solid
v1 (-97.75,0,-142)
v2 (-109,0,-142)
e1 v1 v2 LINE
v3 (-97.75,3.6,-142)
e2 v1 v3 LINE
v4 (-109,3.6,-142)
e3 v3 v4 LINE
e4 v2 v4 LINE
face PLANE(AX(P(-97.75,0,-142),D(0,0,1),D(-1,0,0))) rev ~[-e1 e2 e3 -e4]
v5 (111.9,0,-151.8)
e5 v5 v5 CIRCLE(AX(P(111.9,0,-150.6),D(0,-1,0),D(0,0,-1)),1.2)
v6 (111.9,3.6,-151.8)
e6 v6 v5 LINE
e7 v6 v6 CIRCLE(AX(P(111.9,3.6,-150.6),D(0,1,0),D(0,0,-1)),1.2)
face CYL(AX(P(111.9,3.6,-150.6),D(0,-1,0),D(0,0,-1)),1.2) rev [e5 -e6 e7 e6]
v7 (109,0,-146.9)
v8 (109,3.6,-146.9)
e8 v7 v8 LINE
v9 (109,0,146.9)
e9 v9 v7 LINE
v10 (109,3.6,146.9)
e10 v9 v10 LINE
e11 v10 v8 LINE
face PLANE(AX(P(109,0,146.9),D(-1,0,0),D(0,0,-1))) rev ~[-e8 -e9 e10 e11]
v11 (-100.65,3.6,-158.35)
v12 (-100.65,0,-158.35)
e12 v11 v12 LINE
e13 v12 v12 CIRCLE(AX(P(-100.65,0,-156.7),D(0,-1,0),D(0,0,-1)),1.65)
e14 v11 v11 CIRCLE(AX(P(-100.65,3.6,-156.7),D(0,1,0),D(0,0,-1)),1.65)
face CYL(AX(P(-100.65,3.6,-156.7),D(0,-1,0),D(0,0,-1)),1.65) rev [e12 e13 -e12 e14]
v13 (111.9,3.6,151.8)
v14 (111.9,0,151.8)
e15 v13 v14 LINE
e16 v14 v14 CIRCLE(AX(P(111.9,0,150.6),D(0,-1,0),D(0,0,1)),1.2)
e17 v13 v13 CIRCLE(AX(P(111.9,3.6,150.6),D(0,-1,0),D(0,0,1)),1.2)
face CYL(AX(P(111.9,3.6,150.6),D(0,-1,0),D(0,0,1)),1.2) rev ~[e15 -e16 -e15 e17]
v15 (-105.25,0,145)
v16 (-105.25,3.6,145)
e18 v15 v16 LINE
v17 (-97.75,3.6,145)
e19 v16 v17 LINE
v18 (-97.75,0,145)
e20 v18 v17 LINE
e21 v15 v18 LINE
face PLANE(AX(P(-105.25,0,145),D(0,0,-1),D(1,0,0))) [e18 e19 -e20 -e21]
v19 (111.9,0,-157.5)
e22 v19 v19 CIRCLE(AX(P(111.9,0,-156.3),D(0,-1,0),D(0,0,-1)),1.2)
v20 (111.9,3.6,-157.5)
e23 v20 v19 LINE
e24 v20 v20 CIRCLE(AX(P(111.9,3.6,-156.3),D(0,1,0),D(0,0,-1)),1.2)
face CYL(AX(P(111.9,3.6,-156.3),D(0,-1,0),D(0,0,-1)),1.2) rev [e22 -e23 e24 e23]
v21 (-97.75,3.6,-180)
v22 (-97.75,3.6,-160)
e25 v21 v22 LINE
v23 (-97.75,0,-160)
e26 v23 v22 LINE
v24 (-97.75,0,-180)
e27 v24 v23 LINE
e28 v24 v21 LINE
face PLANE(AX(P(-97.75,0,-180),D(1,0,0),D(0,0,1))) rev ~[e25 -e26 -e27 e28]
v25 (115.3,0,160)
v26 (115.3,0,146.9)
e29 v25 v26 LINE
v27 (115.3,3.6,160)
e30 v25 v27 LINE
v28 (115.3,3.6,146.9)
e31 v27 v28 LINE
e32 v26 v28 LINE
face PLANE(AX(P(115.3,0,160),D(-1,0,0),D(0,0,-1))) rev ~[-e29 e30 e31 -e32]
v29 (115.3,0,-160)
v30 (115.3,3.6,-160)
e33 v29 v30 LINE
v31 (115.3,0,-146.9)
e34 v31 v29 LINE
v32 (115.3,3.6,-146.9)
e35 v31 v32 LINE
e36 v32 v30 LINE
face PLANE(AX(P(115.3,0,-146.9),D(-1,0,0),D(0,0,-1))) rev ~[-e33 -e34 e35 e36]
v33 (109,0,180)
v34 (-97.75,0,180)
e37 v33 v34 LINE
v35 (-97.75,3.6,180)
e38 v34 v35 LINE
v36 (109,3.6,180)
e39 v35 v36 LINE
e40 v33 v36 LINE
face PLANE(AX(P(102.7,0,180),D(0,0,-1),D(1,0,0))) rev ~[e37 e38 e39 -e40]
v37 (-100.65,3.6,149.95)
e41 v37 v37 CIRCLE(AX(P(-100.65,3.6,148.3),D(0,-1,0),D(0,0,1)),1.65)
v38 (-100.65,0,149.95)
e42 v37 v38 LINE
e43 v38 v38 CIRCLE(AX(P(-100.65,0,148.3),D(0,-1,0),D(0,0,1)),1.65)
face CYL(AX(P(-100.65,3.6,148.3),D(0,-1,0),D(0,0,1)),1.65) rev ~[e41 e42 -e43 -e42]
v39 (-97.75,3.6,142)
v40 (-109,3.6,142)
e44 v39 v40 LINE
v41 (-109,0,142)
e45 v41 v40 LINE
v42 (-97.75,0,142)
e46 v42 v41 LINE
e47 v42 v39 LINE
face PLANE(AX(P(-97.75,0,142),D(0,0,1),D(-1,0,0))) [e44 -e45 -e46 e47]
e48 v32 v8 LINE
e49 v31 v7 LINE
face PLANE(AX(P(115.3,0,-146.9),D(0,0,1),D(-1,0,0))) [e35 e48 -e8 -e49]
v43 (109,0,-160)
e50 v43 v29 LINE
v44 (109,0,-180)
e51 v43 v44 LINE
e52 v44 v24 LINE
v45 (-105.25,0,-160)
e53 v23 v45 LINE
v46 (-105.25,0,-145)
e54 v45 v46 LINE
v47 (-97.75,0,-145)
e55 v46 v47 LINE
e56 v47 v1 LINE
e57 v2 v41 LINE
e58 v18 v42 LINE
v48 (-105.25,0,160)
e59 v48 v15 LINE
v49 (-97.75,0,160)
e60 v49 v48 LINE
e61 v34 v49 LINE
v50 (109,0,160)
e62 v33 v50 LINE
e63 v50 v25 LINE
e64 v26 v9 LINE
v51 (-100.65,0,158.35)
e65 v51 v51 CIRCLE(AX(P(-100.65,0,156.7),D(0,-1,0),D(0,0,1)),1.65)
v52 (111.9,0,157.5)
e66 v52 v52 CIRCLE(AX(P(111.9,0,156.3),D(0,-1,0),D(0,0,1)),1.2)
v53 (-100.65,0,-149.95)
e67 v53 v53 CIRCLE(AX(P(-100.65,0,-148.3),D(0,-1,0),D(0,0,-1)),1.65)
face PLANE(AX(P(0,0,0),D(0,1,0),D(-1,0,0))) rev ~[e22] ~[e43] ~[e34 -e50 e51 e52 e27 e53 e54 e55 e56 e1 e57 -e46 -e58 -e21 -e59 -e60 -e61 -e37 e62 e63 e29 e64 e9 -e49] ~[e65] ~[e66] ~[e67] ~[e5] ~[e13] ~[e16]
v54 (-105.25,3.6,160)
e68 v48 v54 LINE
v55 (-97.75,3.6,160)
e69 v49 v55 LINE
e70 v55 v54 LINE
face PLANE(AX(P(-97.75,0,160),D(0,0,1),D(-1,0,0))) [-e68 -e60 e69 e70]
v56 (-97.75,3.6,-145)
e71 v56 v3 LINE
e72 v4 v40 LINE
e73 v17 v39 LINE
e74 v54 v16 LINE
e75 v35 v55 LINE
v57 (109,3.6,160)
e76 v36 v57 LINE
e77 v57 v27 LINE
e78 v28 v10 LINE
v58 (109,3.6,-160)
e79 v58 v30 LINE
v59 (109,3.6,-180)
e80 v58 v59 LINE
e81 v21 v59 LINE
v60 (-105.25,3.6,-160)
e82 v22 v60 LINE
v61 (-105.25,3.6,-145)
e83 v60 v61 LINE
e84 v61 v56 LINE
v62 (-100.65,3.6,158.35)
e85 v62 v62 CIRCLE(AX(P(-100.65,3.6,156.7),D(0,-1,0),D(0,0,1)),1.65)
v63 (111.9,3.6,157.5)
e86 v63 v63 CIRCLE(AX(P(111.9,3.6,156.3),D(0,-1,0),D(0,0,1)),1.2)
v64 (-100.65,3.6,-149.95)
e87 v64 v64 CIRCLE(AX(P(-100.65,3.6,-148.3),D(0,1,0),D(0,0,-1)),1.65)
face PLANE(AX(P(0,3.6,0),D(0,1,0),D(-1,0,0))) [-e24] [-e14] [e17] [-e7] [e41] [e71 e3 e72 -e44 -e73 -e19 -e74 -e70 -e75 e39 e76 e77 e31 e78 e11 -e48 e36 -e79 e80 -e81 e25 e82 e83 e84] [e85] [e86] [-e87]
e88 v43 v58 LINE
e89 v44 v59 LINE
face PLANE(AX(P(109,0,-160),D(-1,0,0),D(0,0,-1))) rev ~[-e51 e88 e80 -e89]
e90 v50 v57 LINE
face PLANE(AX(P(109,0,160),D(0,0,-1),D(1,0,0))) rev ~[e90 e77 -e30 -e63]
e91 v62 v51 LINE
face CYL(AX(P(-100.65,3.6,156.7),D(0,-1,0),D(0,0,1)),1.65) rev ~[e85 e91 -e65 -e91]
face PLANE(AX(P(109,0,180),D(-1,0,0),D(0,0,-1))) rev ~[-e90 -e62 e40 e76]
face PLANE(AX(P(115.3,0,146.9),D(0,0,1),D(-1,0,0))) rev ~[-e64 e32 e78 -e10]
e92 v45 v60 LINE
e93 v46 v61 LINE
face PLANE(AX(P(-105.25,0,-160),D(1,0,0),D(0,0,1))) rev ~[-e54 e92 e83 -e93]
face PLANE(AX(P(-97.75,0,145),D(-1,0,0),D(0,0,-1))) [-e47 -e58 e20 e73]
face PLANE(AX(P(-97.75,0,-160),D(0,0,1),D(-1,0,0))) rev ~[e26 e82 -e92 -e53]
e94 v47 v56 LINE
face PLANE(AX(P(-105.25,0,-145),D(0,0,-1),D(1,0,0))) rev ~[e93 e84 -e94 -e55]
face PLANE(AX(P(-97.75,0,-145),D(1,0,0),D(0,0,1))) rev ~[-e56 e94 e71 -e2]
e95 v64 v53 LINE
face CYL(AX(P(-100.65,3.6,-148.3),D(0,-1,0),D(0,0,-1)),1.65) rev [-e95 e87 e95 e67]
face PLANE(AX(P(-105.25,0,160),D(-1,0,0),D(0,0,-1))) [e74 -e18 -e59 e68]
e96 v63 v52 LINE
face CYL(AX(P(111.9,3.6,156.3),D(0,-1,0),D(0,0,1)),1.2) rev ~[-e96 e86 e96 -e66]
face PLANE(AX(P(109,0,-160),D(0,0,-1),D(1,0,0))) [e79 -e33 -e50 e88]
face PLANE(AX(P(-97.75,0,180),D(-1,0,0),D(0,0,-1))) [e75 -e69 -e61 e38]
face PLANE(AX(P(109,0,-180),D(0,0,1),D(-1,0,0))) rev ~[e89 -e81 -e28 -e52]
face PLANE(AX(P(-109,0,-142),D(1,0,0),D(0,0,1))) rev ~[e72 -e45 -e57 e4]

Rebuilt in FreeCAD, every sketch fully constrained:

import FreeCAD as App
import Part
import Sketcher

V = App.Vector


def add_polygon(sketch, points):
    """Adds a closed chain of lines whose ends are joined by coincident constraints."""
    first, n = sketch.GeometryCount, len(points)
    for a, b in zip(points, points[1:] + points[:1]):
        sketch.addGeometry(Part.LineSegment(App.Vector(*a, 0), App.Vector(*b, 0)), False)
    for i in range(n):
        sketch.addConstraint(Sketcher.Constraint("Coincident", first + i, 2, first + (i + 1) % n, 1))

doc = App.newDocument("Part")
body = doc.addObject("PartDesign::Body", "Body")

# Sketch on XZ plane
sketch1 = doc.addObject("Sketcher::SketchObject", "Sketch")
body.addObject(sketch1)
sketch1.AttachmentSupport = (doc.XZ_Plane, [""])
sketch1.MapMode = "FlatFace"
add_polygon(sketch1, [(109, -160), (109, -180), (-97.8, -180), (-97.8, -160), (-105.2, -160), (-105.2, -145), (-97.8, -145), (-97.8, -142), (-109, -142), (-109, 142), (-97.8, 142), (-97.8, 145), (-105.2, 145), (-105.2, 160), (-97.8, 160), (-97.8, 180), (109, 180), (109, 160), (115.3, 160), (115.3, 146.9), (109, 146.9), (109, -146.9), (115.3, -146.9), (115.3, -160)])  # lines 0-23
sketch1.addConstraint([
    Sketcher.Constraint("Vertical", 0),
    Sketcher.Constraint("Horizontal", 1),
    Sketcher.Constraint("Vertical", 2),
    Sketcher.Constraint("Horizontal", 3),
    Sketcher.Constraint("Vertical", 4),
    Sketcher.Constraint("Horizontal", 5),
    Sketcher.Constraint("Vertical", 6),
    Sketcher.Constraint("Horizontal", 7),
    Sketcher.Constraint("Vertical", 8),
    Sketcher.Constraint("Horizontal", 9),
    Sketcher.Constraint("Vertical", 10),
    Sketcher.Constraint("Horizontal", 11),
    Sketcher.Constraint("Vertical", 12),
    Sketcher.Constraint("Horizontal", 13),
    Sketcher.Constraint("Vertical", 14),
    Sketcher.Constraint("Horizontal", 15),
    Sketcher.Constraint("Vertical", 16),
    Sketcher.Constraint("Horizontal", 17),
    Sketcher.Constraint("Vertical", 18),
    Sketcher.Constraint("Horizontal", 19),
    Sketcher.Constraint("Vertical", 20),
    Sketcher.Constraint("Horizontal", 21),
    Sketcher.Constraint("Vertical", 22),
    Sketcher.Constraint("Horizontal", 23),
    Sketcher.Constraint("Symmetric", 6, 2, 9, 2, -1),
    Sketcher.Constraint("Symmetric", 4, 2, 11, 2, -1),
    Sketcher.Constraint("Symmetric", 2, 2, 13, 2, -1),
    Sketcher.Constraint("Symmetric", 0, 2, 15, 2, -1),
    Sketcher.Constraint("Symmetric", 18, 2, 21, 2, -1),
    Sketcher.Constraint("Horizontal", 13, 2, 16, 2),
    Sketcher.Constraint("Horizontal", 3, 2, 22, 2),
    Sketcher.Constraint("Vertical", 2, 2, 5, 2),
    Sketcher.Constraint("Vertical", 16, 2, 19, 2),
    Sketcher.Constraint("DistanceY", 0, 2, 0, 1, 20.0),
    Sketcher.Constraint("DistanceY", 4, 1, 4, 2, 15.0),
    Sketcher.Constraint("DistanceY", 6, 1, 6, 2, 3.0),
    Sketcher.Constraint("DistanceX", 3, 2, 3, 1, 7.5),
    Sketcher.Constraint("DistanceX", 17, 1, 17, 2, 6.3),
    Sketcher.Constraint("DistanceY", 18, 2, 18, 1, 13.1),
    Sketcher.Constraint("DistanceX", 7, 2, 7, 1, 11.25),
    Sketcher.Constraint("DistanceY", 8, 1, 8, 2, 284.0),
    Sketcher.Constraint("DistanceX", -1, 1, 0, 2, 109.0),
    Sketcher.Constraint("DistanceX", 7, 2, -1, 1, 109.0),
])
pad1 = doc.addObject("PartDesign::Pad", "Pad")
body.addObject(pad1)
pad1.Profile = sketch1
pad1.Length = 3.6
pad1.Reversed = True

# Sketch on XZ plane
sketch2 = doc.addObject("Sketcher::SketchObject", "Sketch001")
body.addObject(sketch2)
sketch2.AttachmentSupport = (doc.XZ_Plane, [""])
sketch2.MapMode = "FlatFace"
sketch2.AttachmentOffset = App.Placement(V(0, 0, -3.6), App.Rotation())
sketch2.addGeometry([
    Part.Circle(V(-100.7, 156.7, 0), V(0, 0, 1), 1.6),
    Part.Circle(V(-100.7, 148.3, 0), V(0, 0, 1), 1.6),
], False)
sketch2.addConstraint([
    Sketcher.Constraint("Equal", 0, 1),
    Sketcher.Constraint("Vertical", 0, 3, 1, 3),
    Sketcher.Constraint("Diameter", 0, 3.3),
    Sketcher.Constraint("DistanceY", -1, 1, 0, 3, 156.7),
    Sketcher.Constraint("DistanceY", -1, 1, 1, 3, 148.3),
    Sketcher.Constraint("DistanceX", 0, 3, -1, 1, 100.65),
])
doc.recompute()
hole = doc.addObject("PartDesign::Hole", "Hole")
body.addObject(hole)
hole.Profile = sketch2
hole.ThreadType = "None"
hole.Diameter = 3.3
hole.DepthType = "ThroughAll"
hole.Reversed = True
doc.recompute()

mirrored = doc.addObject("PartDesign::Mirrored", "Mirrored")
body.addObject(mirrored)
mirrored.Originals = [hole]
mirrored.MirrorPlane = (doc.XY_Plane, [""])
body.Tip = mirrored

# Sketch on XZ plane
sketch3 = doc.addObject("Sketcher::SketchObject", "Sketch002")
body.addObject(sketch3)
sketch3.AttachmentSupport = (doc.XZ_Plane, [""])
sketch3.MapMode = "FlatFace"
sketch3.AttachmentOffset = App.Placement(V(0, 0, -3.6), App.Rotation())
sketch3.addGeometry([
    Part.Circle(V(111.9, 156.3, 0), V(0, 0, 1), 1.2),
    Part.Circle(V(111.9, 150.6, 0), V(0, 0, 1), 1.2),
], False)
sketch3.addConstraint([
    Sketcher.Constraint("Equal", 0, 1),
    Sketcher.Constraint("Vertical", 0, 3, 1, 3),
    Sketcher.Constraint("Diameter", 0, 2.4),
    Sketcher.Constraint("DistanceX", -1, 1, 0, 3, 111.9),
    Sketcher.Constraint("DistanceY", -1, 1, 0, 3, 156.3),
    Sketcher.Constraint("DistanceY", -1, 1, 1, 3, 150.6),
])
doc.recompute()
hole2 = doc.addObject("PartDesign::Hole", "Hole001")
body.addObject(hole2)
hole2.Profile = sketch3
hole2.ThreadType = "None"
hole2.Diameter = 2.4
hole2.DepthType = "ThroughAll"
hole2.Reversed = True
doc.recompute()

mirrored2 = doc.addObject("PartDesign::Mirrored", "Mirrored001")
body.addObject(mirrored2)
mirrored2.Originals = [hole2]
mirrored2.MirrorPlane = (doc.XY_Plane, [""])
body.Tip = mirrored2

doc.recompute()
